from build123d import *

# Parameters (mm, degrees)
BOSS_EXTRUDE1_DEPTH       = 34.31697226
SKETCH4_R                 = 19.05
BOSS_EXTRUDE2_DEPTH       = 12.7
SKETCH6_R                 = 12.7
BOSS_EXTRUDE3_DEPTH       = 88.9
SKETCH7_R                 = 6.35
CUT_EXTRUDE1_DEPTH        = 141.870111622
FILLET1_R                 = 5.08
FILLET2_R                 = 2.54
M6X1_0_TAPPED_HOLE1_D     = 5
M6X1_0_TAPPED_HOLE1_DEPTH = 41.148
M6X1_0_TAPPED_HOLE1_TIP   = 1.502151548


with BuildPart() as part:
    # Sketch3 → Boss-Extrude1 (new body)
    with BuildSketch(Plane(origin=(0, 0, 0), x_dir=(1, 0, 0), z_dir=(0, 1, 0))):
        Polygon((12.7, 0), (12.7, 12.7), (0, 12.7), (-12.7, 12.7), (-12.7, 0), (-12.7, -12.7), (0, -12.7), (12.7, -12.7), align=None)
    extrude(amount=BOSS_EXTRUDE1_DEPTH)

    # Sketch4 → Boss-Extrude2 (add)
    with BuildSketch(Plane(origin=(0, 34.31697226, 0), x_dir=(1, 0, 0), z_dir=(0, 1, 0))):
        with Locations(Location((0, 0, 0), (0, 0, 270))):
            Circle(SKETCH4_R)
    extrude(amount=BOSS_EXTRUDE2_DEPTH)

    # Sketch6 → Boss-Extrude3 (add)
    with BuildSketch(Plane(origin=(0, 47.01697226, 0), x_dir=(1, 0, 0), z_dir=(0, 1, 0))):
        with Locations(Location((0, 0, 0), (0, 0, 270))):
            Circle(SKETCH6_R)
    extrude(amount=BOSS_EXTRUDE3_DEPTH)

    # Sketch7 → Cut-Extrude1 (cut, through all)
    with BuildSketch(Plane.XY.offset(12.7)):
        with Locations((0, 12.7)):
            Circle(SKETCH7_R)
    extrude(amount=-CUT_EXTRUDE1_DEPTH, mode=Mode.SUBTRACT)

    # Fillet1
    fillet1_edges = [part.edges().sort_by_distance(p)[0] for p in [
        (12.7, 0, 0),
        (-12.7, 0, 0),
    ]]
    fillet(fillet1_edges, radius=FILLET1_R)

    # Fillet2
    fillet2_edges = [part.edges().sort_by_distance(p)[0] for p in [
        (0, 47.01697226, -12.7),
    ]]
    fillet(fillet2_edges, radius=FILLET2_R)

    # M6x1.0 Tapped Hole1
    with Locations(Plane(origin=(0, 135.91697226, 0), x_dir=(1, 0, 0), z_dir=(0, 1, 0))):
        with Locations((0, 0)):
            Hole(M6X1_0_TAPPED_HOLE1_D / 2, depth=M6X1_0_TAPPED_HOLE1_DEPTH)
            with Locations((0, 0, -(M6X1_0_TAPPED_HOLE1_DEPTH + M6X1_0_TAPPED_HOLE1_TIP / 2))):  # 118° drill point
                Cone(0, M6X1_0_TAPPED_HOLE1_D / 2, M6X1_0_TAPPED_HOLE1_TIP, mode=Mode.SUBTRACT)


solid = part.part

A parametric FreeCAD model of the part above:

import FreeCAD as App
import Part
import Sketcher
from FreeCAD import Vector
Q = App.Units.Quantity


def edges_at(feature, points):
    """Names of the edges that pass closest to the given points."""
    edges = feature.Shape.Edges
    near = lambda p: min(range(len(edges)), key=lambda i: edges[i].distToShape(Part.Vertex(*p))[0])
    return sorted({f"Edge{near(p) + 1}" for p in points})


def add_polygon(sketch, points):
    """Adds a closed chain of lines whose ends are joined by coincident constraints."""
    first, n = sketch.GeometryCount, len(points)
    for a, b in zip(points, points[1:] + points[:1]):
        sketch.addGeometry(Part.LineSegment(App.Vector(*a, 0), App.Vector(*b, 0)), False)
    for i in range(n):
        sketch.addConstraint(Sketcher.Constraint("Coincident", first + i, 2, first + (i + 1) % n, 1))

doc = App.newDocument("Part")
body = doc.addObject("PartDesign::Body", "Body")

sketch1 = body.newObject("Sketcher::SketchObject", "Sketch")
sketch1.AttachmentSupport = (doc.getObject("XZ_Plane"), [""])
sketch1.MapMode = "FlatFace"
add_polygon(sketch1, [(13, -13), (-13, -13), (-13, 13), (13, 13)])
sketch1.addConstraint([
    Sketcher.Constraint("Horizontal", 0),
    Sketcher.Constraint("Vertical", 1),
    Sketcher.Constraint("Horizontal", 2),
    Sketcher.Constraint("Vertical", 3),
    Sketcher.Constraint("Symmetric", 0, 2, 2, 2, -1, 1),
    Sketcher.Constraint("Equal", 2, 1),
    Sketcher.Constraint("DistanceX", 0, 2, 0, 1, Q("1 in")),
])
pad1 = body.newObject("PartDesign::Pad", "Pad")
pad1.Profile = sketch1
pad1.Length = 34.316972
pad1.Reversed = True

sketch2 = body.newObject("Sketcher::SketchObject", "Sketch001")
sketch2.AttachmentSupport = (doc.getObject("XZ_Plane"), [""])
sketch2.MapMode = "FlatFace"
sketch2.AttachmentOffset = App.Placement(Vector(0, 0, -34.316972), App.Rotation())
sketch2.addGeometry(Part.Circle(Vector(0, 0, 0), Vector(0, 0, 1), 19), False)
sketch2.addConstraint([
    Sketcher.Constraint("Coincident", 0, 3, -1, 1),
    Sketcher.Constraint("Diameter", 0, Q("1.5 in")),
])
pad2 = body.newObject("PartDesign::Pad", "Pad001")
pad2.Profile = sketch2
pad2.Length = Q("0.5 in")
pad2.Reversed = True

sketch3 = body.newObject("Sketcher::SketchObject", "Sketch002")
sketch3.AttachmentSupport = (doc.getObject("XZ_Plane"), [""])
sketch3.MapMode = "FlatFace"
sketch3.AttachmentOffset = App.Placement(Vector(0, 0, -47.016972), App.Rotation())
sketch3.addGeometry(Part.Circle(Vector(0, 0, 0), Vector(0, 0, 1), 13), False)
sketch3.addConstraint([
    Sketcher.Constraint("Coincident", 0, 3, -1, 1),
    Sketcher.Constraint("Diameter", 0, Q("1 in")),
])
pad3 = body.newObject("PartDesign::Pad", "Pad002")
pad3.Profile = sketch3
pad3.Length = Q("3.5 in")
pad3.Reversed = True

sketch4 = body.newObject("Sketcher::SketchObject", "Sketch003")
sketch4.AttachmentSupport = (doc.getObject("XY_Plane"), [""])
sketch4.MapMode = "FlatFace"
sketch4.AttachmentOffset = App.Placement(Vector(0, 0, 0.5 * 25.4), App.Rotation())
sketch4.addGeometry(Part.Circle(Vector(0, 13, 0), Vector(0, 0, 1), 6), False)
sketch4.addConstraint([
    Sketcher.Constraint("PointOnObject", 0, 3, -2),
    Sketcher.Constraint("Diameter", 0, Q("0.5 in")),
    Sketcher.Constraint("DistanceY", -1, 1, 0, 3, Q("0.5 in")),
])
pocket1 = body.newObject("PartDesign::Pocket", "Pocket")
pocket1.Profile = sketch4
pocket1.Type = "ThroughAll"
doc.recompute()

fillet = body.newObject("PartDesign::Fillet", "Fillet")
fillet.Base = (pocket1, edges_at(pocket1, [(12.7, 0, 0), (-12.7, 0, 0)]))
fillet.Radius = Q("0.2 in")
doc.recompute()

fillet2 = body.newObject("PartDesign::Fillet", "Fillet001")
fillet2.Base = (fillet, edges_at(fillet, [(0, 47.017, -12.7)]))
fillet2.Radius = Q("0.1 in")

sketch5 = body.newObject("Sketcher::SketchObject", "Sketch004")
sketch5.AttachmentSupport = (doc.getObject("XZ_Plane"), [""])
sketch5.MapMode = "FlatFace"
sketch5.AttachmentOffset = App.Placement(Vector(0, 0, -135.916972), App.Rotation())
sketch5.addGeometry(Part.Circle(Vector(0, 0, 0), Vector(0, 0, 1), 2.5), False)
sketch5.addConstraint([
    Sketcher.Constraint("Coincident", 0, 3, -1, 1),
    Sketcher.Constraint("Diameter", 0, Q("5 mm")),
])
doc.recompute()
hole = body.newObject("PartDesign::Hole", "Hole")
hole.Profile = sketch5
hole.ThreadType = "None"
hole.Diameter = 5
hole.DepthType = "Dimension"
hole.Depth = Q("1.62 in")
hole.DrillPoint = "Angled"
hole.DrillPointAngle = 118
hole.Reversed = True

doc.recompute()
